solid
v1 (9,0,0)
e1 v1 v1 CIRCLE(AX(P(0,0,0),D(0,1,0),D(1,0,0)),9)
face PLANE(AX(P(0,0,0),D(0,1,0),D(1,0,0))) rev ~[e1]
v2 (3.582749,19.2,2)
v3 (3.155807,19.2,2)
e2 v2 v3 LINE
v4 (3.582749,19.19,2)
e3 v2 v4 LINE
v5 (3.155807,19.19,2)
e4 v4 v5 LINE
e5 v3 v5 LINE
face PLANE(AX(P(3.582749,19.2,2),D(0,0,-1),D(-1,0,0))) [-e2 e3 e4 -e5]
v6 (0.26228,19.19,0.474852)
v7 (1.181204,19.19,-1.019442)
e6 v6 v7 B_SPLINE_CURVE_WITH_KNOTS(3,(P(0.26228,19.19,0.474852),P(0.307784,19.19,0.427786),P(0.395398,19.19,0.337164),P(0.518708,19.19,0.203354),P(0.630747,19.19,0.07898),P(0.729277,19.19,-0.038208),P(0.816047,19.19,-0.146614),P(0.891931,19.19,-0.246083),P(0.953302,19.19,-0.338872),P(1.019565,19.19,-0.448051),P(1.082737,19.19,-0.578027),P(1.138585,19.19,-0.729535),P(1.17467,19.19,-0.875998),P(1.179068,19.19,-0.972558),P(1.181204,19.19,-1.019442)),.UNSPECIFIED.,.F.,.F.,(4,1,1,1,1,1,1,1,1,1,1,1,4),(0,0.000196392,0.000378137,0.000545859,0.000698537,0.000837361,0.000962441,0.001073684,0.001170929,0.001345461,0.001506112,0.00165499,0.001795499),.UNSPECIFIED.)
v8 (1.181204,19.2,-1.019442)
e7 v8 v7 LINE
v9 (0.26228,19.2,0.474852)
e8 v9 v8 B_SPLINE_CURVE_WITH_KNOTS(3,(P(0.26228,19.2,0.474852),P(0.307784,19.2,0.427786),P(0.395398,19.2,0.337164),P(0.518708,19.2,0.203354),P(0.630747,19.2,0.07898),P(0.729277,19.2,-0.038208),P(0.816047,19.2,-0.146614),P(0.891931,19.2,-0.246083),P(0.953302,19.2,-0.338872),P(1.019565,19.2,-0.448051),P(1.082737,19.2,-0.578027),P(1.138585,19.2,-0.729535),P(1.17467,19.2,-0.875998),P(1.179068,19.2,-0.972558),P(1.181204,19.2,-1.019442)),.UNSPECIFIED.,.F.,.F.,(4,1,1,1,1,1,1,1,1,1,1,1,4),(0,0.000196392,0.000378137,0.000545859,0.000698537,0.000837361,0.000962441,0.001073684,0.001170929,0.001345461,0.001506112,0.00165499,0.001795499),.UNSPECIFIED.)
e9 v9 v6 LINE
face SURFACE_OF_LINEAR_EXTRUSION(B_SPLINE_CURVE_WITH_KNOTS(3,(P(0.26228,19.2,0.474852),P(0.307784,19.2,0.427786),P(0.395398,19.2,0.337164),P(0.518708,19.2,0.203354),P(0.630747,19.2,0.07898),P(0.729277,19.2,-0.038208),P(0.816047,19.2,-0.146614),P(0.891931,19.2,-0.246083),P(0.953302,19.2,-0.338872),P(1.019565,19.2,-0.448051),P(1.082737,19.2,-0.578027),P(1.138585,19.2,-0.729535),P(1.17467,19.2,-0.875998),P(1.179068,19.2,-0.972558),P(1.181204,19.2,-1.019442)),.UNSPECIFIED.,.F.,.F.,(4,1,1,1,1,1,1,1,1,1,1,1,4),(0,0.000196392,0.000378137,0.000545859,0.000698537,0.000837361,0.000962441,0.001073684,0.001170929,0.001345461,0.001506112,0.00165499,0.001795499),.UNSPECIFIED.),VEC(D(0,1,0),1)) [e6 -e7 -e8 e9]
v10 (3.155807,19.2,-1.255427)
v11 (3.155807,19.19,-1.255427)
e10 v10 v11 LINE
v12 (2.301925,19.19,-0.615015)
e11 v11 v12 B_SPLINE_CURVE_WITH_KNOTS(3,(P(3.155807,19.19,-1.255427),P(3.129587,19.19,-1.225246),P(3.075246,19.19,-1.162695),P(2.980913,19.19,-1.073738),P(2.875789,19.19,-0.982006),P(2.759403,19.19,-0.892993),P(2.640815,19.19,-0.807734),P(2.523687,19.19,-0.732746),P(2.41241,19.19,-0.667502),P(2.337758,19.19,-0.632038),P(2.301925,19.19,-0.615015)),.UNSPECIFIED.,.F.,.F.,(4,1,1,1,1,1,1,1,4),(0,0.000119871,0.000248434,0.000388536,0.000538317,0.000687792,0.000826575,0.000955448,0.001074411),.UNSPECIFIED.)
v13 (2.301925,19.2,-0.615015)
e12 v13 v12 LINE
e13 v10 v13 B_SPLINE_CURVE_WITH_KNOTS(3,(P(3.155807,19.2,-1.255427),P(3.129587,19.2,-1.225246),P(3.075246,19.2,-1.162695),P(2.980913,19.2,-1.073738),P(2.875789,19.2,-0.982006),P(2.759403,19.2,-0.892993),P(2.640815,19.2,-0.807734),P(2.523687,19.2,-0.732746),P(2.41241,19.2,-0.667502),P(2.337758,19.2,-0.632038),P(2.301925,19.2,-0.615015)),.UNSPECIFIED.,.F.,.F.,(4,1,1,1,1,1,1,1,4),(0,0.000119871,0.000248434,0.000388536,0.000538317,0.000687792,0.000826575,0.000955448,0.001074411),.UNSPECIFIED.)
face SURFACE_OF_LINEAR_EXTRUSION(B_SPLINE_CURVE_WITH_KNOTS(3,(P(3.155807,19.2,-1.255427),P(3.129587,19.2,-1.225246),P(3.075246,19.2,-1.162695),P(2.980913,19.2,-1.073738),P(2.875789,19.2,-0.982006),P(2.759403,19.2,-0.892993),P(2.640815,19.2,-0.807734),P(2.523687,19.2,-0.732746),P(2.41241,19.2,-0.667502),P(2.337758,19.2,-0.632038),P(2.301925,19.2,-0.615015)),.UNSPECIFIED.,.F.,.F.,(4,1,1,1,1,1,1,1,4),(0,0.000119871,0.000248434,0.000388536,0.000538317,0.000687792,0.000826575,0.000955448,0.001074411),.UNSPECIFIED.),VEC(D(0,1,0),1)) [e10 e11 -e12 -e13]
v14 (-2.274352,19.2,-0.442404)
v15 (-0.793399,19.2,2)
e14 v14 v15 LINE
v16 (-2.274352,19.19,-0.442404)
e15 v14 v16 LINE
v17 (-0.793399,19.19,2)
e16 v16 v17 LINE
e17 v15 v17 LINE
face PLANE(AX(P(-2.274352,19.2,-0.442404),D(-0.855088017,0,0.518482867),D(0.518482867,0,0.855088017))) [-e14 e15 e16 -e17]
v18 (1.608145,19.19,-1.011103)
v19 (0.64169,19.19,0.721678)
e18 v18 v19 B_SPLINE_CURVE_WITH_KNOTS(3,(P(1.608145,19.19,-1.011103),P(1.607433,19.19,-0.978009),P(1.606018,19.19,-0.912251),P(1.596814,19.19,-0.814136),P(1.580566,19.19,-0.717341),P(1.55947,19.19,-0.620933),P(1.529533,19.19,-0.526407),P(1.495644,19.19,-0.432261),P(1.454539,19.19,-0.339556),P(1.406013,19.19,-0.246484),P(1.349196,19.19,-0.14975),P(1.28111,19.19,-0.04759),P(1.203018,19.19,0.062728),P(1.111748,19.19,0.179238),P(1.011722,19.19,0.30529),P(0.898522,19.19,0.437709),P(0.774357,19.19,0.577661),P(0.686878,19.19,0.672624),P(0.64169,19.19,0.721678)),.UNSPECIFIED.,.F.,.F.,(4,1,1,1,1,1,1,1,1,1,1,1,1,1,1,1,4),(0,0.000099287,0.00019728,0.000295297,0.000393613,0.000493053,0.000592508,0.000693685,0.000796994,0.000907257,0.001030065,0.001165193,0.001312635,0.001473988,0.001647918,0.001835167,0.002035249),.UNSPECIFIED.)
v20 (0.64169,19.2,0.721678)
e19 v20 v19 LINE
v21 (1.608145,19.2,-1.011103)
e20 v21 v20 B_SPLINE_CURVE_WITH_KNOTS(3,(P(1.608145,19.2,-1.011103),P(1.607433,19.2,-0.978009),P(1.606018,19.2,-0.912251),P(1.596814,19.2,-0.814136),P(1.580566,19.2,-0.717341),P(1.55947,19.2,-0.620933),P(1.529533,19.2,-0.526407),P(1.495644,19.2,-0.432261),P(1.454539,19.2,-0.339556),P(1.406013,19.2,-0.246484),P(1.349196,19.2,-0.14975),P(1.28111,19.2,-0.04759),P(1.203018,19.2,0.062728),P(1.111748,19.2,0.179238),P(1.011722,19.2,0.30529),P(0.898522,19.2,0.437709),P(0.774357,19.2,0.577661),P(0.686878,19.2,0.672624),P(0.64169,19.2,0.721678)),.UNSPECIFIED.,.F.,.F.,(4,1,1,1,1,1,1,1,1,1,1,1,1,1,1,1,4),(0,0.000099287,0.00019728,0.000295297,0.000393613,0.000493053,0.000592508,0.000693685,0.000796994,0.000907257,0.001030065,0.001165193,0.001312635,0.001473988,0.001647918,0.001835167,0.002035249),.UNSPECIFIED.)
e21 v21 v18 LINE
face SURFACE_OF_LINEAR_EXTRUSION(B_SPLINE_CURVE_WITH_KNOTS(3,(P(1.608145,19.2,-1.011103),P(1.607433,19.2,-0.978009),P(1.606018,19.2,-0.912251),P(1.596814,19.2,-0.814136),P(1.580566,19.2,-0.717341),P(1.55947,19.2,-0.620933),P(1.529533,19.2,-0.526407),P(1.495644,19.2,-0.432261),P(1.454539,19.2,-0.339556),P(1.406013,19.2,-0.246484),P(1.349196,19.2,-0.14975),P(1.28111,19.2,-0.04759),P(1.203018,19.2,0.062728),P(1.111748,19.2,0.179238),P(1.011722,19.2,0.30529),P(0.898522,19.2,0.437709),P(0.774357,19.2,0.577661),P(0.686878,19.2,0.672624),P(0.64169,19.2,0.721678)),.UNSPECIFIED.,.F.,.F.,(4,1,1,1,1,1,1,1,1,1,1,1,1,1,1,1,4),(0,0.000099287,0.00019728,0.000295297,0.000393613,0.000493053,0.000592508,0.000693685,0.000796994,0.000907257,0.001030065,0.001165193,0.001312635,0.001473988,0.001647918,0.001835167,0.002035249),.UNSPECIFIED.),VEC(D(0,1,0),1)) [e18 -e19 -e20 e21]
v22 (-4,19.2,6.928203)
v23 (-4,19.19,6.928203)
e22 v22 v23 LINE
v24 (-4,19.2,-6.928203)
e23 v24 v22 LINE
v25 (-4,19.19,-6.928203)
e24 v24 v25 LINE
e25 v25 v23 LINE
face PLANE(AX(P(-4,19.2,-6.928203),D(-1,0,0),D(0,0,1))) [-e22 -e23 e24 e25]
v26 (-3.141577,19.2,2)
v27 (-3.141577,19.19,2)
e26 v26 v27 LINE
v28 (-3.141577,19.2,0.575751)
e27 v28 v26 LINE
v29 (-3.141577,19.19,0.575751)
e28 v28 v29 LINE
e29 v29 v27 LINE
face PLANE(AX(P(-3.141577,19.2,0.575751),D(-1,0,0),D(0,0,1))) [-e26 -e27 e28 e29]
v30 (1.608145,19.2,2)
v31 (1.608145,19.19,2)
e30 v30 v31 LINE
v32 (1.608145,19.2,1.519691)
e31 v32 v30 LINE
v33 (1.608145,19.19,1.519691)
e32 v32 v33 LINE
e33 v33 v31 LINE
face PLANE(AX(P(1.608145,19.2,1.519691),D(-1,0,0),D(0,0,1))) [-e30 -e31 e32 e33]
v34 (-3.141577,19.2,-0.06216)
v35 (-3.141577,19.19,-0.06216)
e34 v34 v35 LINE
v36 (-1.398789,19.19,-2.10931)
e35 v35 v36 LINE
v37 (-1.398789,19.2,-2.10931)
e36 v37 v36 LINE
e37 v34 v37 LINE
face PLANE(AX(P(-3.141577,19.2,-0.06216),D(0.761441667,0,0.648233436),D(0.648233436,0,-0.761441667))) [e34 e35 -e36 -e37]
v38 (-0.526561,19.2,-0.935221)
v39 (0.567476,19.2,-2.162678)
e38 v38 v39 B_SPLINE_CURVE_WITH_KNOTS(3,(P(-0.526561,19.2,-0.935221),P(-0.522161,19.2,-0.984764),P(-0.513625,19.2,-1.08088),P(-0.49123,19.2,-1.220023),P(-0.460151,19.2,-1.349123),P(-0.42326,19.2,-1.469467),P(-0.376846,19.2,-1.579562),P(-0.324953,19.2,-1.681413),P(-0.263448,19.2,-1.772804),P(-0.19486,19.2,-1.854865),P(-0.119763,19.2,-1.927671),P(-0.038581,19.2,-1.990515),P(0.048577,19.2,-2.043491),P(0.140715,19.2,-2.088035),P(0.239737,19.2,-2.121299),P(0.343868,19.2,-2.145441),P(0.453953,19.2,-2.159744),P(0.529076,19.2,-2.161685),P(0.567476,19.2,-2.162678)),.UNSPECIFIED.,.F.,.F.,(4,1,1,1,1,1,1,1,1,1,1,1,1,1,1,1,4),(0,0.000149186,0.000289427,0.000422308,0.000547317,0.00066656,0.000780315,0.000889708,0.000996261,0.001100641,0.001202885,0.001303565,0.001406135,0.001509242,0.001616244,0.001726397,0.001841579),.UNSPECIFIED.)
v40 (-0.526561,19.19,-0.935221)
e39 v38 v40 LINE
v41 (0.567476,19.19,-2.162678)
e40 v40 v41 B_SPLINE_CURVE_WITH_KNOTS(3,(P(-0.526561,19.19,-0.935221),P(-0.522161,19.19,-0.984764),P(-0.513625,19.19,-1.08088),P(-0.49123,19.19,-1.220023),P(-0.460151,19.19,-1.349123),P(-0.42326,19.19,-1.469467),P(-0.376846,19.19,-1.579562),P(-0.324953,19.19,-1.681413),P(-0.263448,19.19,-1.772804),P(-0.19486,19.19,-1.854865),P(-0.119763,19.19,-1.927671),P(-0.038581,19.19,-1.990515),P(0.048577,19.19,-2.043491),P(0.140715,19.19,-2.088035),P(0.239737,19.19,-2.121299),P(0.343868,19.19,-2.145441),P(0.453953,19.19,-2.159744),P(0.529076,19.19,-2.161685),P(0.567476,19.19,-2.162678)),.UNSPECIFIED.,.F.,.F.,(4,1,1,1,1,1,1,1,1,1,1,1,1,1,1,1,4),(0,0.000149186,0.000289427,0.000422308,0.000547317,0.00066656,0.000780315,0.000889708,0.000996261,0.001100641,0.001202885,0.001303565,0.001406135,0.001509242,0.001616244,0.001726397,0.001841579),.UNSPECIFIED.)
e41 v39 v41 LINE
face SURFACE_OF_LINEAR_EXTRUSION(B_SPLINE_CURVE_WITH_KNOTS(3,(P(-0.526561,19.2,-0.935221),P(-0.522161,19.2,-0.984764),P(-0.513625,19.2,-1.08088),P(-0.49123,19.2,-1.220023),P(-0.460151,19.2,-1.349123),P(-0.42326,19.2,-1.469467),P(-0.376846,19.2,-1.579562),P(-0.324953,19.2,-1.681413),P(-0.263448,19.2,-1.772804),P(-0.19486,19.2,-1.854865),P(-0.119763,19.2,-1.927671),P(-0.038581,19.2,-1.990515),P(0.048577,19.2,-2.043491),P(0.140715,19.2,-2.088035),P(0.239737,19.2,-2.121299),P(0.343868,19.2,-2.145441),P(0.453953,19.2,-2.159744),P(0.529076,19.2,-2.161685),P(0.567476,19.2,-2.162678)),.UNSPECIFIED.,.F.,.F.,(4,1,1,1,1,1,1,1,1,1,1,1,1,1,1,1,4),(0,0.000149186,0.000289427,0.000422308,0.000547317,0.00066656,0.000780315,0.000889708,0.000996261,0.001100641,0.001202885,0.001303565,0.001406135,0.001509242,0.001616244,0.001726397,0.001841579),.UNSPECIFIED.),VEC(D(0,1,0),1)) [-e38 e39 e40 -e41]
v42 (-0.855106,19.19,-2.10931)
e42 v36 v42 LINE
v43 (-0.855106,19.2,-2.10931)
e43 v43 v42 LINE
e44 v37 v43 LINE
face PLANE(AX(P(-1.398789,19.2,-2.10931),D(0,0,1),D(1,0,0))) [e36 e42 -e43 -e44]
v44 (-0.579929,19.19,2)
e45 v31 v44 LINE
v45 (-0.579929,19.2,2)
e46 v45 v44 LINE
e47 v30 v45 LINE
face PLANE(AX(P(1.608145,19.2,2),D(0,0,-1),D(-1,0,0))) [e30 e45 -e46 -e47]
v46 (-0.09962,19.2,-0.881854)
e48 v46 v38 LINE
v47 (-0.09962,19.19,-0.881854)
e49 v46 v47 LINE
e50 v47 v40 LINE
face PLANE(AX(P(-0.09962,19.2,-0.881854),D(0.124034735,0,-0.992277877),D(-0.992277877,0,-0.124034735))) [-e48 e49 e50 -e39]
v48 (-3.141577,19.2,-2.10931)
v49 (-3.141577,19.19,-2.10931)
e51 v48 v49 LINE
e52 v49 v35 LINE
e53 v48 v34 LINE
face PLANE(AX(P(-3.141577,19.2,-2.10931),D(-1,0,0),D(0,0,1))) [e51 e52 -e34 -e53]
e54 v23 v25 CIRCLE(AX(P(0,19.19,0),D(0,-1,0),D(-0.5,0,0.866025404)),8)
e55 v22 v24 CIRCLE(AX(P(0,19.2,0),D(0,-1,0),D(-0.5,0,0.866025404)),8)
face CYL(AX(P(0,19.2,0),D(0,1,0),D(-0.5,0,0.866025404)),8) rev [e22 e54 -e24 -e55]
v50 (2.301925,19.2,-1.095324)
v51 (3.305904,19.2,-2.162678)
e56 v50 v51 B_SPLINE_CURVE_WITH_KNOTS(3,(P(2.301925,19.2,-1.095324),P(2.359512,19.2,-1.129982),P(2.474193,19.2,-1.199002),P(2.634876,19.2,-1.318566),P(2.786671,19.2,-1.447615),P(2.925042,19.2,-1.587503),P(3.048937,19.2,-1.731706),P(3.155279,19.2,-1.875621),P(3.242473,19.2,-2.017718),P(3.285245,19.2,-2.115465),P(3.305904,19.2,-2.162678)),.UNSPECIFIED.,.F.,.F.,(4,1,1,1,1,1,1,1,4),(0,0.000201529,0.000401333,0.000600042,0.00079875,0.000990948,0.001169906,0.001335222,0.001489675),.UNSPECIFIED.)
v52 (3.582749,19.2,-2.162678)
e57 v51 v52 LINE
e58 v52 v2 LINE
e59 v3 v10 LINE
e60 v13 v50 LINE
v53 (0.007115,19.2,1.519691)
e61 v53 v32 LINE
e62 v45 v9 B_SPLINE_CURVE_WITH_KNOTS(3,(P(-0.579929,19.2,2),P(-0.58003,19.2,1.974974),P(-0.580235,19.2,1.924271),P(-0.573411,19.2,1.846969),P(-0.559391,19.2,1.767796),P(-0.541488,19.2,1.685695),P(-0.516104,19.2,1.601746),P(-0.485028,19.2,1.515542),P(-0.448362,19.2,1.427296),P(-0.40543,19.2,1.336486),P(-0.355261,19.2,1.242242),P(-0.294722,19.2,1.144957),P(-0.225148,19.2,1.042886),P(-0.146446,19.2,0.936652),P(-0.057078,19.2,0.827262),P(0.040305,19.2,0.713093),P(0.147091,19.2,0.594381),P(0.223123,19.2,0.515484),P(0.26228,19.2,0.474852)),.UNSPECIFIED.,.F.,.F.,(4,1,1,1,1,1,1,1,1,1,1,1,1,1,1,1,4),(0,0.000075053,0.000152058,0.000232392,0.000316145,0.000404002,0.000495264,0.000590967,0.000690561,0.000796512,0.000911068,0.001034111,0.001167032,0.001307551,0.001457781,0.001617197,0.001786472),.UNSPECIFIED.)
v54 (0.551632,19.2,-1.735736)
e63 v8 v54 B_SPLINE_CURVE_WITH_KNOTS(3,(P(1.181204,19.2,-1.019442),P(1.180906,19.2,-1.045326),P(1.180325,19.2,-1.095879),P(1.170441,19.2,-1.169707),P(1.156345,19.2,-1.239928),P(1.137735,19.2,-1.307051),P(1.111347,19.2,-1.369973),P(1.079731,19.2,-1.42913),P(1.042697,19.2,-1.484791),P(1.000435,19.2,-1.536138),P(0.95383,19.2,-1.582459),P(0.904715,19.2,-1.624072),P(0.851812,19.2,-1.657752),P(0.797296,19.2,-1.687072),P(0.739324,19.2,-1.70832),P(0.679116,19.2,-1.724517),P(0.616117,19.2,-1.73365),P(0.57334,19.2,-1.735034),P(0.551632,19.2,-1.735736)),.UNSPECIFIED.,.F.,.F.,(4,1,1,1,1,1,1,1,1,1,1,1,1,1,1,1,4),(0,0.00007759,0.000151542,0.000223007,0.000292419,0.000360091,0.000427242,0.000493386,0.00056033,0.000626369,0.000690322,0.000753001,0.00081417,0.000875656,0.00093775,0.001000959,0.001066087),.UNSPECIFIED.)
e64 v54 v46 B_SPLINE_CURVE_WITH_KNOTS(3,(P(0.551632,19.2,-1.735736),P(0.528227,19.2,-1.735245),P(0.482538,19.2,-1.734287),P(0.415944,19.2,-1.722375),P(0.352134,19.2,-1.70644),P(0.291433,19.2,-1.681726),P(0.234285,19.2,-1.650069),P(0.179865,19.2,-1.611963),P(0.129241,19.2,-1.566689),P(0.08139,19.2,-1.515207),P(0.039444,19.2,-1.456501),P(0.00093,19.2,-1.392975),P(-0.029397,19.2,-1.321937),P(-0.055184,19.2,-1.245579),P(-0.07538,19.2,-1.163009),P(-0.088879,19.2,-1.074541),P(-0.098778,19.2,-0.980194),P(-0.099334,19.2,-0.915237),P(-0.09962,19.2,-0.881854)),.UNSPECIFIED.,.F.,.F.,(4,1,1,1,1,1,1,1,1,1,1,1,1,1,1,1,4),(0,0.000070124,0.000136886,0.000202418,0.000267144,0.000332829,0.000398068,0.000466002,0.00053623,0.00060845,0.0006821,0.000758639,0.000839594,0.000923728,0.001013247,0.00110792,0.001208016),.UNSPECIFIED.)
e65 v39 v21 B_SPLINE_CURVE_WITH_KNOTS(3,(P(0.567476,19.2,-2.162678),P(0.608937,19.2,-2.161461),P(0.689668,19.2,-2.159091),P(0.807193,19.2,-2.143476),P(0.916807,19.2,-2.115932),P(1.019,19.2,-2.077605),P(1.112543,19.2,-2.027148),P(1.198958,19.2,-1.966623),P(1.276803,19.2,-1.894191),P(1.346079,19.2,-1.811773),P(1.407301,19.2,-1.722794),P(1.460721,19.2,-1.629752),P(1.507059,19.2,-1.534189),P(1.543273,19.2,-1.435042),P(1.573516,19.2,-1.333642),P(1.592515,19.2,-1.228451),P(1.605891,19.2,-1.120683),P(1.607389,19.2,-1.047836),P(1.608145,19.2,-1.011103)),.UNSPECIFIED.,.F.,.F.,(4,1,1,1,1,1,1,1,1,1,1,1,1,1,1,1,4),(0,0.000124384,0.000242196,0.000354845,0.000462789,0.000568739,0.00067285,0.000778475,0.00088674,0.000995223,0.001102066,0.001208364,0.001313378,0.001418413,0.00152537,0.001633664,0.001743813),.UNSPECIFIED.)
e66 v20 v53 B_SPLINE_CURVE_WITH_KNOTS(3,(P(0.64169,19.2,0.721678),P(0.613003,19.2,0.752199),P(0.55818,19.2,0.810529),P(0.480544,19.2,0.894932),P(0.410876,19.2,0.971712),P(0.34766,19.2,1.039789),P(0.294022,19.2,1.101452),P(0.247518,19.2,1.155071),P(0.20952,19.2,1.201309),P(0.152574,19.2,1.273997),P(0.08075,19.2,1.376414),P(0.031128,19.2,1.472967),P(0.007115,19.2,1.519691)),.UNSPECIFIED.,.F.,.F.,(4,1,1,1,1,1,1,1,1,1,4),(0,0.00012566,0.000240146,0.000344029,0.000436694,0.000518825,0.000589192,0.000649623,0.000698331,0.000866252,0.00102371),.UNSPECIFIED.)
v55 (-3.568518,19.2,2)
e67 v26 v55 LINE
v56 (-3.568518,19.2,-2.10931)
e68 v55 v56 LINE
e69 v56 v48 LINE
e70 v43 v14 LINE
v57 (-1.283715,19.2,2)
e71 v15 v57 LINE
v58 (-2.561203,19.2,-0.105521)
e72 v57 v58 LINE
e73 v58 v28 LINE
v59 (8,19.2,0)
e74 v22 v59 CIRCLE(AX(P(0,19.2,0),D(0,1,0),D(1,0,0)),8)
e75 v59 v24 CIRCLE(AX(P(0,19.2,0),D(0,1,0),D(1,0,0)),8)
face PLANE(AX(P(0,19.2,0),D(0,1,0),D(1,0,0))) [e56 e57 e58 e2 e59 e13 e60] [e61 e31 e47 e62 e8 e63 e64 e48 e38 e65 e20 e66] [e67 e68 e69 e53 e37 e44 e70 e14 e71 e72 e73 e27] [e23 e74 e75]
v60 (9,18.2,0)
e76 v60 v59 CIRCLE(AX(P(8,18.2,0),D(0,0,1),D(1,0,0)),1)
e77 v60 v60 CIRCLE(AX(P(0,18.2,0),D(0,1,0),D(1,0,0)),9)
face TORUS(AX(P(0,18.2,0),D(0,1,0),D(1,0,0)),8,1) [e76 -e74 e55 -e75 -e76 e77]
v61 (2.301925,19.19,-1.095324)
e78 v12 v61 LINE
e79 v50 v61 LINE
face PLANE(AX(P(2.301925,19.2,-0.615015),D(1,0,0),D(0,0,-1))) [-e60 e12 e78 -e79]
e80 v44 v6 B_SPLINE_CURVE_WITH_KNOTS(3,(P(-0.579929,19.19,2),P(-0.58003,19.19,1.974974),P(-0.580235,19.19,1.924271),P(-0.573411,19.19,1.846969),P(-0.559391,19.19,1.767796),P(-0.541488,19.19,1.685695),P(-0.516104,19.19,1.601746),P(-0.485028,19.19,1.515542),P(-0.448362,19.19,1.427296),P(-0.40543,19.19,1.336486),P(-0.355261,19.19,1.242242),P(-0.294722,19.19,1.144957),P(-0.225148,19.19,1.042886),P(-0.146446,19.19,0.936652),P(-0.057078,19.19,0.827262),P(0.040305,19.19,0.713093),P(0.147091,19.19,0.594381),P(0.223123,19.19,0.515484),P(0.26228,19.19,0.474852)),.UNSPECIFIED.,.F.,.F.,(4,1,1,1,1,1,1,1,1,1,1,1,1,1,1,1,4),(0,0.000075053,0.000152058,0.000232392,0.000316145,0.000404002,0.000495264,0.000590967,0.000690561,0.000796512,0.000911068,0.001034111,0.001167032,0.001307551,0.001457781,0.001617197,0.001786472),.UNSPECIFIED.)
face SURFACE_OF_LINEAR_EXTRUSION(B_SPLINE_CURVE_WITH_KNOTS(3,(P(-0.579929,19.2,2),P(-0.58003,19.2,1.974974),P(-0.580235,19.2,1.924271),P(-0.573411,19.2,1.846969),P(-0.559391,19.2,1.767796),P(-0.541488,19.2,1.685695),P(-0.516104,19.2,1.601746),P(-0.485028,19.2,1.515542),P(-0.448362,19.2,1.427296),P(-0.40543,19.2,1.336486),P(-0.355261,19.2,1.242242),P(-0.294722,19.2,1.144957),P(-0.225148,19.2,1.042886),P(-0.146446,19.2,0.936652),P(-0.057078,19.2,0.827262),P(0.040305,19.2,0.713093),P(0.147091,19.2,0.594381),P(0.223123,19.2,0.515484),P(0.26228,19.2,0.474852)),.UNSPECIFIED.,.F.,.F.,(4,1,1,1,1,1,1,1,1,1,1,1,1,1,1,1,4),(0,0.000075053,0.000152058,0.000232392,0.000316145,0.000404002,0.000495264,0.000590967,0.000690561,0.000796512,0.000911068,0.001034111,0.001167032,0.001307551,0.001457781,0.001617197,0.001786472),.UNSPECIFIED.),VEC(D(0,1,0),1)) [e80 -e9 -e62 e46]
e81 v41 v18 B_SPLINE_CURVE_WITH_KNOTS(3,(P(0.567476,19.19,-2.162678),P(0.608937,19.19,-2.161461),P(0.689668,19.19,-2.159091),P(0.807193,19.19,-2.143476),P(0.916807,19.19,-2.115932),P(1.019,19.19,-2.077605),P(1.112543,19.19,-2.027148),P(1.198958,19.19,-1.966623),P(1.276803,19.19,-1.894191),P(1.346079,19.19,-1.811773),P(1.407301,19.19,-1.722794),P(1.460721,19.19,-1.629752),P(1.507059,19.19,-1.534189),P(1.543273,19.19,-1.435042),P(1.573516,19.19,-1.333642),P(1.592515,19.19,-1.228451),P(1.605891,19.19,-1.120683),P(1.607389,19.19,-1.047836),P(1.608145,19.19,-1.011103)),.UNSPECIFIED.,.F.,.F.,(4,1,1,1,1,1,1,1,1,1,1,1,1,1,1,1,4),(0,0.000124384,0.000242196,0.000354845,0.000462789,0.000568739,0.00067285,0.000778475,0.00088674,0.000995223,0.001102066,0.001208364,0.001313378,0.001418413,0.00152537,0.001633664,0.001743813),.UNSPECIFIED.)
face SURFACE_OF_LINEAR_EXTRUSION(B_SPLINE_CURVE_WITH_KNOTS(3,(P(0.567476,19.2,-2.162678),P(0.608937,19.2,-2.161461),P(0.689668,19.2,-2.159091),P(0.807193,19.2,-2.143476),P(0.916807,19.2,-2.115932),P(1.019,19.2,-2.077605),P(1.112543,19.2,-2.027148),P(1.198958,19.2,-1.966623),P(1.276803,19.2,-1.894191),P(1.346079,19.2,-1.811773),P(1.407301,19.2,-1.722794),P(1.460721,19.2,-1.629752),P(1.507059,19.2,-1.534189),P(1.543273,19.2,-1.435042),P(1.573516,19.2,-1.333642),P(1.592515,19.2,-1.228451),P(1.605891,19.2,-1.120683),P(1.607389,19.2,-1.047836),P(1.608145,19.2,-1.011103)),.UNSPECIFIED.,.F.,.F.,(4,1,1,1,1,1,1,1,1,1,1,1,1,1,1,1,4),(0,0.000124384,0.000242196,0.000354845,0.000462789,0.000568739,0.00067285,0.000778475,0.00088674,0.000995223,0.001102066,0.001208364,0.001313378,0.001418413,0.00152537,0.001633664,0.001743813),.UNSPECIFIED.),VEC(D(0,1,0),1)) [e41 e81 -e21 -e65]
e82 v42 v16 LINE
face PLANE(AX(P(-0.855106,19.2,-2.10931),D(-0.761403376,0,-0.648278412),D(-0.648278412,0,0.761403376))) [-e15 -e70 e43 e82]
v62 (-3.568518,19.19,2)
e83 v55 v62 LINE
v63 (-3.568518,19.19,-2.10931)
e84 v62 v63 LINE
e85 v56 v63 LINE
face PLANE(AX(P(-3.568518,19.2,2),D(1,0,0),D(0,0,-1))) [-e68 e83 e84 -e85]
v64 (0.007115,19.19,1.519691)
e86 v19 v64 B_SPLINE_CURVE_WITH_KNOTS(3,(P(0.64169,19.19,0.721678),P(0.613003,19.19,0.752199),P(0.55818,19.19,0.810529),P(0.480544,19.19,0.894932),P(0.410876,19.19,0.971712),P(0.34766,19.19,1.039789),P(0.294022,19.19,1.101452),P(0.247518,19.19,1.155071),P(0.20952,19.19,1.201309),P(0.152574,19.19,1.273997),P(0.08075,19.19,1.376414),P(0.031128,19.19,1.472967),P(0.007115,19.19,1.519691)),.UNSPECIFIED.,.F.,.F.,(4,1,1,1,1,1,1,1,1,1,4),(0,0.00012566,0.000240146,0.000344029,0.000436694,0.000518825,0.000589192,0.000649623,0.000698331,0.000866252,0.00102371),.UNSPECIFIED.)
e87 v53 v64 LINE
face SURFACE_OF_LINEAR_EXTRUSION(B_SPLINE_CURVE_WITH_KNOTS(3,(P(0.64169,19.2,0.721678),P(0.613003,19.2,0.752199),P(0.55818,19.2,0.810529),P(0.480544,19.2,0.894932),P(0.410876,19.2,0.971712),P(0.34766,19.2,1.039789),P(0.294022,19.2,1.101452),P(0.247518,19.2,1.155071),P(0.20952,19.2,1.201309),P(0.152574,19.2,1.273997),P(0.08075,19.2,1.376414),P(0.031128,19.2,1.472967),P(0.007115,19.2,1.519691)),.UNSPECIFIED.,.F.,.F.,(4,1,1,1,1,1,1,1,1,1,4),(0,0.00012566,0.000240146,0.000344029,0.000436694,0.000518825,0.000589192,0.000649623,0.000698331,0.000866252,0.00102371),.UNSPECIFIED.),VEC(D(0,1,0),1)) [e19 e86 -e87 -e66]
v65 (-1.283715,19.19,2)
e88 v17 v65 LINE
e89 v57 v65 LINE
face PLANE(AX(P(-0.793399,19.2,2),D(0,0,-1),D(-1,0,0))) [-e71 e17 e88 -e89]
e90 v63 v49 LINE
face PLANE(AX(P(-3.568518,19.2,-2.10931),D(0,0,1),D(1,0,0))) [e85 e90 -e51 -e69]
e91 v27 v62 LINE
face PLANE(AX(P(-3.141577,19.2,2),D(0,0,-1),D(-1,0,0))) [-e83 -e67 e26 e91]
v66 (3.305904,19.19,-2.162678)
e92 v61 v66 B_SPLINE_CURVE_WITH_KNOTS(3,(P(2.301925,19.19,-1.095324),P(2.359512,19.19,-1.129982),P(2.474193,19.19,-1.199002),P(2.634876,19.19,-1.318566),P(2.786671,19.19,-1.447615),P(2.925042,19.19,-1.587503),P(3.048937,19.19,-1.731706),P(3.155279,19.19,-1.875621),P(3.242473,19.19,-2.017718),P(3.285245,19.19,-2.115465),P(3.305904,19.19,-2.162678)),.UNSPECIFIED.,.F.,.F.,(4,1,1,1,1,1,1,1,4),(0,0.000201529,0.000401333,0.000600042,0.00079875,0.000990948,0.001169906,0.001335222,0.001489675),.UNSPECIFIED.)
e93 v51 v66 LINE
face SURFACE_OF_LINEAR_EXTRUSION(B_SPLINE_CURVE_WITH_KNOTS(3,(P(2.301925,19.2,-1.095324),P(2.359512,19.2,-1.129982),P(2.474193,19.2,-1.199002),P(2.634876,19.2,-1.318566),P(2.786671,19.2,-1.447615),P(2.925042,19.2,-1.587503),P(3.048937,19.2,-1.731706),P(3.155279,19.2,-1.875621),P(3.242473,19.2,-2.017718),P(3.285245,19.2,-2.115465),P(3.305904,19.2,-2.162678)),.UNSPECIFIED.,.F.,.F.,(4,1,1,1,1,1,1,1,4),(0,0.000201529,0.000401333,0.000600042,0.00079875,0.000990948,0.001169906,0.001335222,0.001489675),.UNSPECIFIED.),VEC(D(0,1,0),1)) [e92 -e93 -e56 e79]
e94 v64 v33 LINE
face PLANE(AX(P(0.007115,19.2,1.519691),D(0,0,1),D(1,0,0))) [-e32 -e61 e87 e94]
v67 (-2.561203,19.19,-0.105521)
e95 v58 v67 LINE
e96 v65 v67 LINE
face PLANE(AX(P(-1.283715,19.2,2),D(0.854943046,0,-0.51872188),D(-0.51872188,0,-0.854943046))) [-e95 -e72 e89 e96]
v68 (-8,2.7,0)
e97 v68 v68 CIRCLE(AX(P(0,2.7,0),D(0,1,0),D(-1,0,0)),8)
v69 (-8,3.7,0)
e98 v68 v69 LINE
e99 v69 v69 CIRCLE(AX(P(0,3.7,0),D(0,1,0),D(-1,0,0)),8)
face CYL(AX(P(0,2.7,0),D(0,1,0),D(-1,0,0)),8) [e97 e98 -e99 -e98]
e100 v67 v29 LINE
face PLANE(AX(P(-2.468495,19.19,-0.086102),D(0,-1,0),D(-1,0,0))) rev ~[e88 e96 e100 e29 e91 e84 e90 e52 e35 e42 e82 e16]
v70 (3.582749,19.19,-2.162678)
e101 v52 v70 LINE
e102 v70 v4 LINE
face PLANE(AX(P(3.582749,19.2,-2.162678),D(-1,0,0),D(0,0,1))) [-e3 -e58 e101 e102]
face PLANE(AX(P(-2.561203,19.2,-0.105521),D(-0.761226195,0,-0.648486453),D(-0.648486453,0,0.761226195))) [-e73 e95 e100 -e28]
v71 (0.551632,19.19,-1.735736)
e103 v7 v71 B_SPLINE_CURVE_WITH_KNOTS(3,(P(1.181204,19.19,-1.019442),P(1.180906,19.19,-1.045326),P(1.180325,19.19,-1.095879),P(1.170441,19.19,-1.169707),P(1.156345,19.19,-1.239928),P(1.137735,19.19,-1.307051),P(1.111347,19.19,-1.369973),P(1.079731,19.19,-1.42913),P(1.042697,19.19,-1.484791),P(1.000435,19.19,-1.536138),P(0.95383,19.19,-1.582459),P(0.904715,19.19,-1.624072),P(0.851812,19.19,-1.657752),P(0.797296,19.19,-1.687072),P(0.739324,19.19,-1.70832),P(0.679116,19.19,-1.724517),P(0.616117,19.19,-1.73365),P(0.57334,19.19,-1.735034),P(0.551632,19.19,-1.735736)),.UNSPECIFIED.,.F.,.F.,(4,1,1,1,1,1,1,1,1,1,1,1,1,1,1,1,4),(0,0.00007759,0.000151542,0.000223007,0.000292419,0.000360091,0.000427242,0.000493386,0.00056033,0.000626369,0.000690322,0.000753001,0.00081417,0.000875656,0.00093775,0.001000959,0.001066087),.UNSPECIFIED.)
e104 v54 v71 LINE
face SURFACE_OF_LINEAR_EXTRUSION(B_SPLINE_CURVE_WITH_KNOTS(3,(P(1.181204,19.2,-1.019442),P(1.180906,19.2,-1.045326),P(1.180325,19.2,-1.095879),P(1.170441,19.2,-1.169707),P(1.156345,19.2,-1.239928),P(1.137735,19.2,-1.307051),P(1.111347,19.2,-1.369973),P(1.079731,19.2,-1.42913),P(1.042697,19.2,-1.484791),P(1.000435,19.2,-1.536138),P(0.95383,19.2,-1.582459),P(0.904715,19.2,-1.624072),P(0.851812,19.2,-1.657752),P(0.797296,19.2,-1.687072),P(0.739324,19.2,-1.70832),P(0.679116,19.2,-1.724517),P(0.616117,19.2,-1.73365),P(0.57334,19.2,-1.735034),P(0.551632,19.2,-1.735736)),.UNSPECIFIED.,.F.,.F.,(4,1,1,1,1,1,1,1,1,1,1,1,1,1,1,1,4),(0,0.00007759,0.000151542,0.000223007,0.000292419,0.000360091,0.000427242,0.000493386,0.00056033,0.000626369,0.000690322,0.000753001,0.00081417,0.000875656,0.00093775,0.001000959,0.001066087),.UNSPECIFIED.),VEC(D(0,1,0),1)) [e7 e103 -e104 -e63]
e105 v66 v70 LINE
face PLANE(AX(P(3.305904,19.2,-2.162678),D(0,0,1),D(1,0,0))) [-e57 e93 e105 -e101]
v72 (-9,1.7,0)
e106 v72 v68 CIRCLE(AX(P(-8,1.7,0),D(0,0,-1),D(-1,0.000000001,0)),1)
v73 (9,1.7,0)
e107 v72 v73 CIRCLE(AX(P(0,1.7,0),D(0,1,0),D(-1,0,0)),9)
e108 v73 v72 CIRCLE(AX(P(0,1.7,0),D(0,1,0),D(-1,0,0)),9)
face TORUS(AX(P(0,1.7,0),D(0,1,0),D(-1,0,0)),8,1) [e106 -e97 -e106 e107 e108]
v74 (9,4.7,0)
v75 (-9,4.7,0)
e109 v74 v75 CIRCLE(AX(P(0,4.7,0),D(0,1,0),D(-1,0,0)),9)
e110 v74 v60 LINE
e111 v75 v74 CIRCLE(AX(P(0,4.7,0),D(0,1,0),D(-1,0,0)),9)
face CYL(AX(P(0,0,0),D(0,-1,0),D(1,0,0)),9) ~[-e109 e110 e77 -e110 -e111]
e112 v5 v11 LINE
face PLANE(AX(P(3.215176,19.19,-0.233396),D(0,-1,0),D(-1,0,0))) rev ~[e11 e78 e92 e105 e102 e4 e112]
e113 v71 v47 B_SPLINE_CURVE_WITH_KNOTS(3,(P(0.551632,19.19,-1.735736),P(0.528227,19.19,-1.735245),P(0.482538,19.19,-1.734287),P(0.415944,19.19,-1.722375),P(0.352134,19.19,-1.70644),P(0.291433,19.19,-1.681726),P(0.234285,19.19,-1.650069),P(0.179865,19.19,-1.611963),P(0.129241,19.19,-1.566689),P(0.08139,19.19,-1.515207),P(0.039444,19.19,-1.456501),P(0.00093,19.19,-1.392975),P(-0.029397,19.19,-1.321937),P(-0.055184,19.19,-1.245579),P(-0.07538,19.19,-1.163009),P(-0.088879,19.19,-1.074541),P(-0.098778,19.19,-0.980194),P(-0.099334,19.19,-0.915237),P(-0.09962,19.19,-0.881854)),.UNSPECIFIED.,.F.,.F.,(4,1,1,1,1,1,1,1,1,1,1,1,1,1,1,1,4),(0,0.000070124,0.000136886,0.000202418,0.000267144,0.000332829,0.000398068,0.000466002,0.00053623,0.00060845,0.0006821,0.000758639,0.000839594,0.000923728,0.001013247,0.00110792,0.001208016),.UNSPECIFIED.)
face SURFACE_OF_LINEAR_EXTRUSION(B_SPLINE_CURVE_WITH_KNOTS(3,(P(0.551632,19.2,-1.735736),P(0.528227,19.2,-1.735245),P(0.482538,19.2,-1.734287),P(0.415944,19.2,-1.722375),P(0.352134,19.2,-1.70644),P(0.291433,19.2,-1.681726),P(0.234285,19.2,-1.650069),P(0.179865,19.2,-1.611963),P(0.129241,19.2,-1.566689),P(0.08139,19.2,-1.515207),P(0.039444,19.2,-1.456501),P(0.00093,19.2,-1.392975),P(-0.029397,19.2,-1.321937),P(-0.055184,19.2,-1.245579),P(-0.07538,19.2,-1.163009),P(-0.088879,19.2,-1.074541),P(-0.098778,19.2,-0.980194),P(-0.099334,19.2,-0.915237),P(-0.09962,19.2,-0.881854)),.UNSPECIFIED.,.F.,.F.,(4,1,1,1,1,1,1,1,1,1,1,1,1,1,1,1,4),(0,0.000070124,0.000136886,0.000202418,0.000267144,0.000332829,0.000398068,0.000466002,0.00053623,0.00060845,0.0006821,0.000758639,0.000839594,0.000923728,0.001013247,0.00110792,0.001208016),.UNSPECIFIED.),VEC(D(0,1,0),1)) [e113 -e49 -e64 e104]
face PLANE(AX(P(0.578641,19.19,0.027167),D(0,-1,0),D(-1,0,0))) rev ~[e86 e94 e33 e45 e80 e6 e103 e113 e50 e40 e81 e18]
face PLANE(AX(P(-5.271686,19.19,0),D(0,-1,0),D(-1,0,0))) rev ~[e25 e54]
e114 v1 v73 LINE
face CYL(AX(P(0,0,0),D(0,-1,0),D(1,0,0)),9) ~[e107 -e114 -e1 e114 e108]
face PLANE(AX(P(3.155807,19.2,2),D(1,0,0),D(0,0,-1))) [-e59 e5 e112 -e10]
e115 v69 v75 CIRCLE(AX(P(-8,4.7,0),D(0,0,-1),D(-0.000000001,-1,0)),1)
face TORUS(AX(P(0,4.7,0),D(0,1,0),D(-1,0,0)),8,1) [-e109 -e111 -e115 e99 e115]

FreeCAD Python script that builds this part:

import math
import FreeCAD as App
import Part
import Sketcher


def edges_at(feature, points):
    """Names of the edges that pass closest to the given points."""
    edges = feature.Shape.Edges
    near = lambda p: min(range(len(edges)), key=lambda i: edges[i].distToShape(Part.Vertex(*p))[0])
    return sorted({f"Edge{near(p) + 1}" for p in points})


def add_polygon(sketch, points):
    """Adds a closed chain of lines whose ends are joined by coincident constraints."""
    first, n = sketch.GeometryCount, len(points)
    for a, b in zip(points, points[1:] + points[:1]):
        sketch.addGeometry(Part.LineSegment(App.Vector(*a, 0), App.Vector(*b, 0)), False)
    for i in range(n):
        sketch.addConstraint(Sketcher.Constraint("Coincident", first + i, 2, first + (i + 1) % n, 1))

doc = App.newDocument("Part")
body = doc.addObject("PartDesign::Body", "Body")

sketch1 = body.newObject("Sketcher::SketchObject", "Sketch")
sketch1.AttachmentSupport = (doc.getObject("XZ_Plane"), [""])
sketch1.MapMode = "FlatFace"
sketch1.addGeometry(Part.Circle(App.Vector(0, 0, 0), App.Vector(0, 0, 1), 9), False)
sketch1.addConstraint([
    Sketcher.Constraint("Coincident", 0, 3, -1, 1),
    Sketcher.Constraint("Diameter", 0, 18.0),
])
pad1 = body.newObject("PartDesign::Pad", "Pad")
pad1.Profile = sketch1
pad1.Length = 19.2
pad1.Reversed = True
doc.recompute()

fillet = body.newObject("PartDesign::Fillet", "Fillet")
fillet.Base = (pad1, edges_at(pad1, [(-9, 19.2, 0)]))
fillet.Radius = 1

sketch2 = body.newObject("Sketcher::SketchObject", "Sketch001")
sketch2.AttachmentSupport = (doc.getObject("XY_Plane"), [""])
sketch2.MapMode = "FlatFace"
sketch2.addGeometry([
    Part.LineSegment(App.Vector(-9, 4.7, 0), App.Vector(-9, 1.7, 0)),
    Part.ArcOfCircle(Part.Circle(App.Vector(-8, 1.7, 0), App.Vector(0, 0, 1), 1), math.radians(90), math.radians(180)),
    Part.LineSegment(App.Vector(-8, 2.7, 0), App.Vector(-8, 3.7, 0)),
    Part.ArcOfCircle(Part.Circle(App.Vector(-8, 4.7, 0), App.Vector(0, 0, 1), 1), math.radians(-180), math.radians(-90)),
], False)
sketch2.addConstraint([
    Sketcher.Constraint("Tangent", 0, 2, 1, 2),
    Sketcher.Constraint("Coincident", 1, 1, 2, 1),
    Sketcher.Constraint("Coincident", 2, 2, 3, 2),
    Sketcher.Constraint("Tangent", 3, 1, 0, 1),
    Sketcher.Constraint("Vertical", 0),
    Sketcher.Constraint("Vertical", 2),
    Sketcher.Constraint("Equal", 1, 3),
    Sketcher.Constraint("Vertical", 3, 3, 1, 1),
    Sketcher.Constraint("Radius", 1, 1.0),
    Sketcher.Constraint("DistanceY", 0, 2, 0, 1, 3.0),
    Sketcher.Constraint("DistanceX", 1, 3, -1, 1, 8.0),
    Sketcher.Constraint("DistanceY", -1, 1, 1, 3, 1.7),
])
groove = body.newObject("PartDesign::Groove", "Groove")
groove.Profile = sketch2
groove.ReferenceAxis = (sketch2, ["V_Axis"])
groove.Angle = 360

sketch3 = body.newObject("Sketcher::SketchObject", "Sketch002")
sketch3.AttachmentSupport = (doc.getObject("XZ_Plane"), [""])
sketch3.MapMode = "FlatFace"
sketch3.AttachmentOffset = App.Placement(App.Vector(0, 0, -19.2), App.Rotation())
sketch3.addGeometry([
    Part.LineSegment(App.Vector(-4, 7, 0), App.Vector(-4, -7, 0)),
    Part.ArcOfCircle(Part.Circle(App.Vector(0, 0, 0), App.Vector(0, 0, 1), 8), math.radians(120), math.radians(240)),
], False)
sketch3.addConstraint([
    Sketcher.Constraint("Coincident", 0, 1, 1, 1),
    Sketcher.Constraint("Coincident", 1, 2, 0, 2),
    Sketcher.Constraint("Vertical", 0),
    Sketcher.Constraint("Coincident", 1, 3, -1, 1),
    Sketcher.Constraint("Radius", 1, 8.0),
    Sketcher.Constraint("DistanceX", 0, 1, -1, 1, 4.0),
])
pocket1 = body.newObject("PartDesign::Pocket", "Pocket")
pocket1.Profile = sketch3
pocket1.Length = 0.01
pocket1.Reversed = True

sketch4 = body.newObject("Sketcher::SketchObject", "Sketch003")
sketch4.AttachmentSupport = (doc.getObject("XZ_Plane"), [""])
sketch4.MapMode = "FlatFace"
sketch4.AttachmentOffset = App.Placement(App.Vector(0, 0, -19.2), App.Rotation())
add_polygon(sketch4, [(-3.568518, -2.10931), (-3.568518, 2), (-3.141577, 2), (-3.141577, 0.575751), (-2.561203, -0.105521), (-1.283715, 2), (-0.793399, 2), (-2.274352, -0.442404), (-0.855106, -2.10931), (-1.398789, -2.10931), (-3.141577, -0.06216), (-3.141577, -2.10931)])
sketch4.addGeometry(Part.LineSegment(App.Vector(1.608145, 2, 0), App.Vector(1.608145, 1.519691, 0)), False)
sketch4.addGeometry(Part.LineSegment(App.Vector(1.608145, 1.519691, 0), App.Vector(0.007115, 1.519691, 0)), False)
sketch4.addGeometry(Part.BSplineCurve([App.Vector(0.64169, 0.721678, 0), App.Vector(0.613003, 0.752199, 0), App.Vector(0.55818, 0.810529, 0), App.Vector(0.480544, 0.894932, 0), App.Vector(0.410876, 0.971712, 0), App.Vector(0.34766, 1.039789, 0), App.Vector(0.294022, 1.101452, 0), App.Vector(0.247518, 1.155071, 0), App.Vector(0.20952, 1.201309, 0), App.Vector(0.152574, 1.273997, 0), App.Vector(0.08075, 1.376414, 0), App.Vector(0.031128, 1.472967, 0), App.Vector(0.007115, 1.519691, 0)], [4, 1, 1, 1, 1, 1, 1, 1, 1, 1, 4], [0, 0.00012566, 0.000240146, 0.000344029, 0.000436694, 0.000518825, 0.000589192, 0.000649623, 0.000698331, 0.000866252, 0.00102371], False, 3, [1, 1, 1, 1, 1, 1, 1, 1, 1, 1, 1, 1, 1], False), False)
sketch4.addGeometry(Part.BSplineCurve([App.Vector(1.608145, -1.011103, 0), App.Vector(1.607433, -0.978009, 0), App.Vector(1.606018, -0.912251, 0), App.Vector(1.596814, -0.814136, 0), App.Vector(1.580566, -0.717341, 0), App.Vector(1.55947, -0.620933, 0), App.Vector(1.529533, -0.526407, 0), App.Vector(1.495644, -0.432261, 0), App.Vector(1.454539, -0.339556, 0), App.Vector(1.406013, -0.246484, 0), App.Vector(1.349196, -0.14975, 0), App.Vector(1.28111, -0.04759, 0), App.Vector(1.203018, 0.062728, 0), App.Vector(1.111748, 0.179238, 0), App.Vector(1.011722, 0.30529, 0), App.Vector(0.898522, 0.437709, 0), App.Vector(0.774357, 0.577661, 0), App.Vector(0.686878, 0.672624, 0), App.Vector(0.64169, 0.721678, 0)], [4, 1, 1, 1, 1, 1, 1, 1, 1, 1, 1, 1, 1, 1, 1, 1, 4], [0, 0.000099287, 0.00019728, 0.000295297, 0.000393613, 0.000493053, 0.000592508, 0.000693685, 0.000796994, 0.000907257, 0.001030065, 0.001165193, 0.001312635, 0.001473988, 0.001647918, 0.001835167, 0.002035249], False, 3, [1, 1, 1, 1, 1, 1, 1, 1, 1, 1, 1, 1, 1, 1, 1, 1, 1, 1, 1], False), False)
sketch4.addGeometry(Part.BSplineCurve([App.Vector(0.567476, -2.162678, 0), App.Vector(0.608937, -2.161461, 0), App.Vector(0.689668, -2.159091, 0), App.Vector(0.807193, -2.143476, 0), App.Vector(0.916807, -2.115932, 0), App.Vector(1.019, -2.077605, 0), App.Vector(1.112543, -2.027148, 0), App.Vector(1.198958, -1.966623, 0), App.Vector(1.276803, -1.894191, 0), App.Vector(1.346079, -1.811773, 0), App.Vector(1.407301, -1.722794, 0), App.Vector(1.460721, -1.629752, 0), App.Vector(1.507059, -1.534189, 0), App.Vector(1.543273, -1.435042, 0), App.Vector(1.573516, -1.333642, 0), App.Vector(1.592515, -1.228451, 0), App.Vector(1.605891, -1.120683, 0), App.Vector(1.607389, -1.047836, 0), App.Vector(1.608145, -1.011103, 0)], [4, 1, 1, 1, 1, 1, 1, 1, 1, 1, 1, 1, 1, 1, 1, 1, 4], [0, 0.000124384, 0.000242196, 0.000354845, 0.000462789, 0.000568739, 0.00067285, 0.000778475, 0.00088674, 0.000995223, 0.001102066, 0.001208364, 0.001313378, 0.001418413, 0.00152537, 0.001633664, 0.001743813], False, 3, [1, 1, 1, 1, 1, 1, 1, 1, 1, 1, 1, 1, 1, 1, 1, 1, 1, 1, 1], False), False)
sketch4.addGeometry(Part.BSplineCurve([App.Vector(-0.526561, -0.935221, 0), App.Vector(-0.522161, -0.984764, 0), App.Vector(-0.513625, -1.08088, 0), App.Vector(-0.49123, -1.220023, 0), App.Vector(-0.460151, -1.349123, 0), App.Vector(-0.42326, -1.469467, 0), App.Vector(-0.376846, -1.579562, 0), App.Vector(-0.324953, -1.681413, 0), App.Vector(-0.263448, -1.772804, 0), App.Vector(-0.19486, -1.854865, 0), App.Vector(-0.119763, -1.927671, 0), App.Vector(-0.038581, -1.990515, 0), App.Vector(0.048577, -2.043491, 0), App.Vector(0.140715, -2.088035, 0), App.Vector(0.239737, -2.121299, 0), App.Vector(0.343868, -2.145441, 0), App.Vector(0.453953, -2.159744, 0), App.Vector(0.529076, -2.161685, 0), App.Vector(0.567476, -2.162678, 0)], [4, 1, 1, 1, 1, 1, 1, 1, 1, 1, 1, 1, 1, 1, 1, 1, 4], [0, 0.000149186, 0.000289427, 0.000422308, 0.000547317, 0.00066656, 0.000780315, 0.000889708, 0.000996261, 0.001100641, 0.001202885, 0.001303565, 0.001406135, 0.001509242, 0.001616244, 0.001726397, 0.001841579], False, 3, [1, 1, 1, 1, 1, 1, 1, 1, 1, 1, 1, 1, 1, 1, 1, 1, 1, 1, 1], False), False)
sketch4.addGeometry(Part.LineSegment(App.Vector(-0.526561, -0.935221, 0), App.Vector(-0.09962, -0.881854, 0)), False)
sketch4.addGeometry(Part.BSplineCurve([App.Vector(0.551632, -1.735736, 0), App.Vector(0.528227, -1.735245, 0), App.Vector(0.482538, -1.734287, 0), App.Vector(0.415944, -1.722375, 0), App.Vector(0.352134, -1.70644, 0), App.Vector(0.291433, -1.681726, 0), App.Vector(0.234285, -1.650069, 0), App.Vector(0.179865, -1.611963, 0), App.Vector(0.129241, -1.566689, 0), App.Vector(0.08139, -1.515207, 0), App.Vector(0.039444, -1.456501, 0), App.Vector(0.00093, -1.392975, 0), App.Vector(-0.029397, -1.321937, 0), App.Vector(-0.055184, -1.245579, 0), App.Vector(-0.07538, -1.163009, 0), App.Vector(-0.088879, -1.074541, 0), App.Vector(-0.098778, -0.980194, 0), App.Vector(-0.099334, -0.915237, 0), App.Vector(-0.09962, -0.881854, 0)], [4, 1, 1, 1, 1, 1, 1, 1, 1, 1, 1, 1, 1, 1, 1, 1, 4], [0, 0.000070124, 0.000136886, 0.000202418, 0.000267144, 0.000332829, 0.000398068, 0.000466002, 0.00053623, 0.00060845, 0.0006821, 0.000758639, 0.000839594, 0.000923728, 0.001013247, 0.00110792, 0.001208016], False, 3, [1, 1, 1, 1, 1, 1, 1, 1, 1, 1, 1, 1, 1, 1, 1, 1, 1, 1, 1], False), False)
sketch4.addGeometry(Part.BSplineCurve([App.Vector(1.181204, -1.019442, 0), App.Vector(1.180906, -1.045326, 0), App.Vector(1.180325, -1.095879, 0), App.Vector(1.170441, -1.169707, 0), App.Vector(1.156345, -1.239928, 0), App.Vector(1.137735, -1.307051, 0), App.Vector(1.111347, -1.369973, 0), App.Vector(1.079731, -1.42913, 0), App.Vector(1.042697, -1.484791, 0), App.Vector(1.000435, -1.536138, 0), App.Vector(0.95383, -1.582459, 0), App.Vector(0.904715, -1.624072, 0), App.Vector(0.851812, -1.657752, 0), App.Vector(0.797296, -1.687072, 0), App.Vector(0.739324, -1.70832, 0), App.Vector(0.679116, -1.724517, 0), App.Vector(0.616117, -1.73365, 0), App.Vector(0.57334, -1.735034, 0), App.Vector(0.551632, -1.735736, 0)], [4, 1, 1, 1, 1, 1, 1, 1, 1, 1, 1, 1, 1, 1, 1, 1, 4], [0, 0.00007759, 0.000151542, 0.000223007, 0.000292419, 0.000360091, 0.000427242, 0.000493386, 0.00056033, 0.000626369, 0.000690322, 0.000753001, 0.00081417, 0.000875656, 0.00093775, 0.001000959, 0.001066087], False, 3, [1, 1, 1, 1, 1, 1, 1, 1, 1, 1, 1, 1, 1, 1, 1, 1, 1, 1, 1], False), False)
sketch4.addGeometry(Part.BSplineCurve([App.Vector(0.26228, 0.474852, 0), App.Vector(0.307784, 0.427786, 0), App.Vector(0.395398, 0.337164, 0), App.Vector(0.518708, 0.203354, 0), App.Vector(0.630747, 0.07898, 0), App.Vector(0.729277, -0.038208, 0), App.Vector(0.816047, -0.146614, 0), App.Vector(0.891931, -0.246083, 0), App.Vector(0.953302, -0.338872, 0), App.Vector(1.019565, -0.448051, 0), App.Vector(1.082737, -0.578027, 0), App.Vector(1.138585, -0.729535, 0), App.Vector(1.17467, -0.875998, 0), App.Vector(1.179068, -0.972558, 0), App.Vector(1.181204, -1.019442, 0)], [4, 1, 1, 1, 1, 1, 1, 1, 1, 1, 1, 1, 4], [0, 0.000196392, 0.000378137, 0.000545859, 0.000698537, 0.000837361, 0.000962441, 0.001073684, 0.001170929, 0.001345461, 0.001506112, 0.00165499, 0.001795499], False, 3, [1, 1, 1, 1, 1, 1, 1, 1, 1, 1, 1, 1, 1, 1, 1], False), False)
sketch4.addGeometry(Part.BSplineCurve([App.Vector(-0.579929, 2, 0), App.Vector(-0.58003, 1.974974, 0), App.Vector(-0.580235, 1.924271, 0), App.Vector(-0.573411, 1.846969, 0), App.Vector(-0.559391, 1.767796, 0), App.Vector(-0.541488, 1.685695, 0), App.Vector(-0.516104, 1.601746, 0), App.Vector(-0.485028, 1.515542, 0), App.Vector(-0.448362, 1.427296, 0), App.Vector(-0.40543, 1.336486, 0), App.Vector(-0.355261, 1.242242, 0), App.Vector(-0.294722, 1.144957, 0), App.Vector(-0.225148, 1.042886, 0), App.Vector(-0.146446, 0.936652, 0), App.Vector(-0.057078, 0.827262, 0), App.Vector(0.040305, 0.713093, 0), App.Vector(0.147091, 0.594381, 0), App.Vector(0.223123, 0.515484, 0), App.Vector(0.26228, 0.474852, 0)], [4, 1, 1, 1, 1, 1, 1, 1, 1, 1, 1, 1, 1, 1, 1, 1, 4], [0, 0.000075053, 0.000152058, 0.000232392, 0.000316145, 0.000404002, 0.000495264, 0.000590967, 0.000690561, 0.000796512, 0.000911068, 0.001034111, 0.001167032, 0.001307551, 0.001457781, 0.001617197, 0.001786472], False, 3, [1, 1, 1, 1, 1, 1, 1, 1, 1, 1, 1, 1, 1, 1, 1, 1, 1, 1, 1], False), False)
sketch4.addGeometry(Part.LineSegment(App.Vector(-0.579929, 2, 0), App.Vector(1.608145, 2, 0)), False)
sketch4.addGeometry(Part.LineSegment(App.Vector(3.155807, 2, 0), App.Vector(3.582749, 2, 0)), False)
sketch4.addGeometry(Part.LineSegment(App.Vector(3.582749, 2, 0), App.Vector(3.582749, -2.162678, 0)), False)
sketch4.addGeometry(Part.LineSegment(App.Vector(3.582749, -2.162678, 0), App.Vector(3.305904, -2.162678, 0)), False)
sketch4.addGeometry(Part.BSplineCurve([App.Vector(2.301925, -1.095324, 0), App.Vector(2.359512, -1.129982, 0), App.Vector(2.474193, -1.199002, 0), App.Vector(2.634876, -1.318566, 0), App.Vector(2.786671, -1.447615, 0), App.Vector(2.925042, -1.587503, 0), App.Vector(3.048937, -1.731706, 0), App.Vector(3.155279, -1.875621, 0), App.Vector(3.242473, -2.017718, 0), App.Vector(3.285245, -2.115465, 0), App.Vector(3.305904, -2.162678, 0)], [4, 1, 1, 1, 1, 1, 1, 1, 4], [0, 0.000201529, 0.000401333, 0.000600042, 0.00079875, 0.000990948, 0.001169906, 0.001335222, 0.001489675], False, 3, [1, 1, 1, 1, 1, 1, 1, 1, 1, 1, 1], False), False)
sketch4.addGeometry(Part.LineSegment(App.Vector(2.301925, -1.095324, 0), App.Vector(2.301925, -0.615015, 0)), False)
sketch4.addGeometry(Part.BSplineCurve([App.Vector(3.155807, -1.255427, 0), App.Vector(3.129587, -1.225246, 0), App.Vector(3.075246, -1.162695, 0), App.Vector(2.980913, -1.073738, 0), App.Vector(2.875789, -0.982006, 0), App.Vector(2.759403, -0.892993, 0), App.Vector(2.640815, -0.807734, 0), App.Vector(2.523687, -0.732746, 0), App.Vector(2.41241, -0.667502, 0), App.Vector(2.337758, -0.632038, 0), App.Vector(2.301925, -0.615015, 0)], [4, 1, 1, 1, 1, 1, 1, 1, 4], [0, 0.000119871, 0.000248434, 0.000388536, 0.000538317, 0.000687792, 0.000826575, 0.000955448, 0.001074411], False, 3, [1, 1, 1, 1, 1, 1, 1, 1, 1, 1, 1], False), False)
sketch4.addGeometry(Part.LineSegment(App.Vector(3.155807, -1.255427, 0), App.Vector(3.155807, 2, 0)), False)
sketch4.addConstraint([
    Sketcher.Constraint("Block", 14),
    Sketcher.Constraint("Block", 15),
    Sketcher.Constraint("Block", 16),
    Sketcher.Constraint("Block", 17),
    Sketcher.Constraint("Block", 19),
    Sketcher.Constraint("Block", 20),
    Sketcher.Constraint("Block", 21),
    Sketcher.Constraint("Block", 22),
    Sketcher.Constraint("Block", 27),
    Sketcher.Constraint("Block", 29),
    Sketcher.Constraint("Coincident", 12, 2, 13, 1),
    Sketcher.Constraint("Coincident", 13, 2, 14, 2),
    Sketcher.Constraint("Coincident", 17, 1, 18, 1),
    Sketcher.Constraint("Coincident", 18, 2, 19, 2),
    Sketcher.Constraint("Coincident", 22, 1, 23, 1),
    Sketcher.Constraint("Coincident", 23, 2, 12, 1),
    Sketcher.Constraint("Coincident", 24, 2, 25, 1),
    Sketcher.Constraint("Coincident", 25, 2, 26, 1),
    Sketcher.Constraint("Coincident", 26, 2, 27, 2),
    Sketcher.Constraint("Coincident", 27, 1, 28, 1),
    Sketcher.Constraint("Coincident", 28, 2, 29, 2),
    Sketcher.Constraint("Coincident", 29, 1, 30, 1),
    Sketcher.Constraint("Coincident", 30, 2, 24, 1),
    Sketcher.Constraint("Vertical", 0),
    Sketcher.Constraint("Horizontal", 1),
    Sketcher.Constraint("Vertical", 2),
    Sketcher.Constraint("Horizontal", 5),
    Sketcher.Constraint("Horizontal", 8),
    Sketcher.Constraint("Vertical", 10),
    Sketcher.Constraint("Horizontal", 11),
    Sketcher.Constraint("Vertical", 12),
    Sketcher.Constraint("Horizontal", 13),
    Sketcher.Constraint("Horizontal", 23),
    Sketcher.Constraint("Horizontal", 24),
    Sketcher.Constraint("Vertical", 25),
    Sketcher.Constraint("Horizontal", 26),
    Sketcher.Constraint("Vertical", 30),
    Sketcher.Constraint("Horizontal", 1, 2, 4, 2),
    Sketcher.Constraint("Horizontal", 8, 2, 10, 2),
    Sketcher.Constraint("Horizontal", 5, 2, 23, 2),
    Sketcher.Constraint("Horizontal", 23, 2, 24, 2),
    Sketcher.Constraint("Vertical", 2, 2, 9, 2),
    Sketcher.Constraint("Equal", 11, 24),
    Sketcher.Constraint("DistanceY", 7, 2, 12, 2, 3.629001),
    Sketcher.Constraint("DistanceX", 1, 1, 1, 2, 0.426941),
    Sketcher.Constraint("DistanceX", 13, 2, 13, 1, 1.60103),
    Sketcher.Constraint("DistanceY", 2, 2, 2, 1, 1.424249),
    Sketcher.Constraint("DistanceY", 10, 2, 10, 1, 2.04715),
    Sketcher.Constraint("DistanceX", 5, 2, -1, 1, 0.793399),
    Sketcher.Constraint("Distance", 4, 2.462762),
    Sketcher.Constraint("Distance", 6, 2.856319),
    Sketcher.Constraint("Distance", 9, 2.688519),
    Sketcher.Constraint("DistanceX", 5, 1, 5, 2, 0.490315),
    Sketcher.Constraint("DistanceX", 8, 2, 8, 1, 0.543683),
    Sketcher.Constraint("DistanceY", 3, 2, -1, 1, 0.105521),
    Sketcher.Constraint("DistanceX", 8, 2, -1, 1, 1.398789),
    Sketcher.Constraint("DistanceX", 3, 2, 6, 2, 0.286851),
])
pocket2 = body.newObject("PartDesign::Pocket", "Pocket001")
pocket2.Profile = sketch4
pocket2.Length = 0.01
pocket2.Reversed = True

doc.recompute()
